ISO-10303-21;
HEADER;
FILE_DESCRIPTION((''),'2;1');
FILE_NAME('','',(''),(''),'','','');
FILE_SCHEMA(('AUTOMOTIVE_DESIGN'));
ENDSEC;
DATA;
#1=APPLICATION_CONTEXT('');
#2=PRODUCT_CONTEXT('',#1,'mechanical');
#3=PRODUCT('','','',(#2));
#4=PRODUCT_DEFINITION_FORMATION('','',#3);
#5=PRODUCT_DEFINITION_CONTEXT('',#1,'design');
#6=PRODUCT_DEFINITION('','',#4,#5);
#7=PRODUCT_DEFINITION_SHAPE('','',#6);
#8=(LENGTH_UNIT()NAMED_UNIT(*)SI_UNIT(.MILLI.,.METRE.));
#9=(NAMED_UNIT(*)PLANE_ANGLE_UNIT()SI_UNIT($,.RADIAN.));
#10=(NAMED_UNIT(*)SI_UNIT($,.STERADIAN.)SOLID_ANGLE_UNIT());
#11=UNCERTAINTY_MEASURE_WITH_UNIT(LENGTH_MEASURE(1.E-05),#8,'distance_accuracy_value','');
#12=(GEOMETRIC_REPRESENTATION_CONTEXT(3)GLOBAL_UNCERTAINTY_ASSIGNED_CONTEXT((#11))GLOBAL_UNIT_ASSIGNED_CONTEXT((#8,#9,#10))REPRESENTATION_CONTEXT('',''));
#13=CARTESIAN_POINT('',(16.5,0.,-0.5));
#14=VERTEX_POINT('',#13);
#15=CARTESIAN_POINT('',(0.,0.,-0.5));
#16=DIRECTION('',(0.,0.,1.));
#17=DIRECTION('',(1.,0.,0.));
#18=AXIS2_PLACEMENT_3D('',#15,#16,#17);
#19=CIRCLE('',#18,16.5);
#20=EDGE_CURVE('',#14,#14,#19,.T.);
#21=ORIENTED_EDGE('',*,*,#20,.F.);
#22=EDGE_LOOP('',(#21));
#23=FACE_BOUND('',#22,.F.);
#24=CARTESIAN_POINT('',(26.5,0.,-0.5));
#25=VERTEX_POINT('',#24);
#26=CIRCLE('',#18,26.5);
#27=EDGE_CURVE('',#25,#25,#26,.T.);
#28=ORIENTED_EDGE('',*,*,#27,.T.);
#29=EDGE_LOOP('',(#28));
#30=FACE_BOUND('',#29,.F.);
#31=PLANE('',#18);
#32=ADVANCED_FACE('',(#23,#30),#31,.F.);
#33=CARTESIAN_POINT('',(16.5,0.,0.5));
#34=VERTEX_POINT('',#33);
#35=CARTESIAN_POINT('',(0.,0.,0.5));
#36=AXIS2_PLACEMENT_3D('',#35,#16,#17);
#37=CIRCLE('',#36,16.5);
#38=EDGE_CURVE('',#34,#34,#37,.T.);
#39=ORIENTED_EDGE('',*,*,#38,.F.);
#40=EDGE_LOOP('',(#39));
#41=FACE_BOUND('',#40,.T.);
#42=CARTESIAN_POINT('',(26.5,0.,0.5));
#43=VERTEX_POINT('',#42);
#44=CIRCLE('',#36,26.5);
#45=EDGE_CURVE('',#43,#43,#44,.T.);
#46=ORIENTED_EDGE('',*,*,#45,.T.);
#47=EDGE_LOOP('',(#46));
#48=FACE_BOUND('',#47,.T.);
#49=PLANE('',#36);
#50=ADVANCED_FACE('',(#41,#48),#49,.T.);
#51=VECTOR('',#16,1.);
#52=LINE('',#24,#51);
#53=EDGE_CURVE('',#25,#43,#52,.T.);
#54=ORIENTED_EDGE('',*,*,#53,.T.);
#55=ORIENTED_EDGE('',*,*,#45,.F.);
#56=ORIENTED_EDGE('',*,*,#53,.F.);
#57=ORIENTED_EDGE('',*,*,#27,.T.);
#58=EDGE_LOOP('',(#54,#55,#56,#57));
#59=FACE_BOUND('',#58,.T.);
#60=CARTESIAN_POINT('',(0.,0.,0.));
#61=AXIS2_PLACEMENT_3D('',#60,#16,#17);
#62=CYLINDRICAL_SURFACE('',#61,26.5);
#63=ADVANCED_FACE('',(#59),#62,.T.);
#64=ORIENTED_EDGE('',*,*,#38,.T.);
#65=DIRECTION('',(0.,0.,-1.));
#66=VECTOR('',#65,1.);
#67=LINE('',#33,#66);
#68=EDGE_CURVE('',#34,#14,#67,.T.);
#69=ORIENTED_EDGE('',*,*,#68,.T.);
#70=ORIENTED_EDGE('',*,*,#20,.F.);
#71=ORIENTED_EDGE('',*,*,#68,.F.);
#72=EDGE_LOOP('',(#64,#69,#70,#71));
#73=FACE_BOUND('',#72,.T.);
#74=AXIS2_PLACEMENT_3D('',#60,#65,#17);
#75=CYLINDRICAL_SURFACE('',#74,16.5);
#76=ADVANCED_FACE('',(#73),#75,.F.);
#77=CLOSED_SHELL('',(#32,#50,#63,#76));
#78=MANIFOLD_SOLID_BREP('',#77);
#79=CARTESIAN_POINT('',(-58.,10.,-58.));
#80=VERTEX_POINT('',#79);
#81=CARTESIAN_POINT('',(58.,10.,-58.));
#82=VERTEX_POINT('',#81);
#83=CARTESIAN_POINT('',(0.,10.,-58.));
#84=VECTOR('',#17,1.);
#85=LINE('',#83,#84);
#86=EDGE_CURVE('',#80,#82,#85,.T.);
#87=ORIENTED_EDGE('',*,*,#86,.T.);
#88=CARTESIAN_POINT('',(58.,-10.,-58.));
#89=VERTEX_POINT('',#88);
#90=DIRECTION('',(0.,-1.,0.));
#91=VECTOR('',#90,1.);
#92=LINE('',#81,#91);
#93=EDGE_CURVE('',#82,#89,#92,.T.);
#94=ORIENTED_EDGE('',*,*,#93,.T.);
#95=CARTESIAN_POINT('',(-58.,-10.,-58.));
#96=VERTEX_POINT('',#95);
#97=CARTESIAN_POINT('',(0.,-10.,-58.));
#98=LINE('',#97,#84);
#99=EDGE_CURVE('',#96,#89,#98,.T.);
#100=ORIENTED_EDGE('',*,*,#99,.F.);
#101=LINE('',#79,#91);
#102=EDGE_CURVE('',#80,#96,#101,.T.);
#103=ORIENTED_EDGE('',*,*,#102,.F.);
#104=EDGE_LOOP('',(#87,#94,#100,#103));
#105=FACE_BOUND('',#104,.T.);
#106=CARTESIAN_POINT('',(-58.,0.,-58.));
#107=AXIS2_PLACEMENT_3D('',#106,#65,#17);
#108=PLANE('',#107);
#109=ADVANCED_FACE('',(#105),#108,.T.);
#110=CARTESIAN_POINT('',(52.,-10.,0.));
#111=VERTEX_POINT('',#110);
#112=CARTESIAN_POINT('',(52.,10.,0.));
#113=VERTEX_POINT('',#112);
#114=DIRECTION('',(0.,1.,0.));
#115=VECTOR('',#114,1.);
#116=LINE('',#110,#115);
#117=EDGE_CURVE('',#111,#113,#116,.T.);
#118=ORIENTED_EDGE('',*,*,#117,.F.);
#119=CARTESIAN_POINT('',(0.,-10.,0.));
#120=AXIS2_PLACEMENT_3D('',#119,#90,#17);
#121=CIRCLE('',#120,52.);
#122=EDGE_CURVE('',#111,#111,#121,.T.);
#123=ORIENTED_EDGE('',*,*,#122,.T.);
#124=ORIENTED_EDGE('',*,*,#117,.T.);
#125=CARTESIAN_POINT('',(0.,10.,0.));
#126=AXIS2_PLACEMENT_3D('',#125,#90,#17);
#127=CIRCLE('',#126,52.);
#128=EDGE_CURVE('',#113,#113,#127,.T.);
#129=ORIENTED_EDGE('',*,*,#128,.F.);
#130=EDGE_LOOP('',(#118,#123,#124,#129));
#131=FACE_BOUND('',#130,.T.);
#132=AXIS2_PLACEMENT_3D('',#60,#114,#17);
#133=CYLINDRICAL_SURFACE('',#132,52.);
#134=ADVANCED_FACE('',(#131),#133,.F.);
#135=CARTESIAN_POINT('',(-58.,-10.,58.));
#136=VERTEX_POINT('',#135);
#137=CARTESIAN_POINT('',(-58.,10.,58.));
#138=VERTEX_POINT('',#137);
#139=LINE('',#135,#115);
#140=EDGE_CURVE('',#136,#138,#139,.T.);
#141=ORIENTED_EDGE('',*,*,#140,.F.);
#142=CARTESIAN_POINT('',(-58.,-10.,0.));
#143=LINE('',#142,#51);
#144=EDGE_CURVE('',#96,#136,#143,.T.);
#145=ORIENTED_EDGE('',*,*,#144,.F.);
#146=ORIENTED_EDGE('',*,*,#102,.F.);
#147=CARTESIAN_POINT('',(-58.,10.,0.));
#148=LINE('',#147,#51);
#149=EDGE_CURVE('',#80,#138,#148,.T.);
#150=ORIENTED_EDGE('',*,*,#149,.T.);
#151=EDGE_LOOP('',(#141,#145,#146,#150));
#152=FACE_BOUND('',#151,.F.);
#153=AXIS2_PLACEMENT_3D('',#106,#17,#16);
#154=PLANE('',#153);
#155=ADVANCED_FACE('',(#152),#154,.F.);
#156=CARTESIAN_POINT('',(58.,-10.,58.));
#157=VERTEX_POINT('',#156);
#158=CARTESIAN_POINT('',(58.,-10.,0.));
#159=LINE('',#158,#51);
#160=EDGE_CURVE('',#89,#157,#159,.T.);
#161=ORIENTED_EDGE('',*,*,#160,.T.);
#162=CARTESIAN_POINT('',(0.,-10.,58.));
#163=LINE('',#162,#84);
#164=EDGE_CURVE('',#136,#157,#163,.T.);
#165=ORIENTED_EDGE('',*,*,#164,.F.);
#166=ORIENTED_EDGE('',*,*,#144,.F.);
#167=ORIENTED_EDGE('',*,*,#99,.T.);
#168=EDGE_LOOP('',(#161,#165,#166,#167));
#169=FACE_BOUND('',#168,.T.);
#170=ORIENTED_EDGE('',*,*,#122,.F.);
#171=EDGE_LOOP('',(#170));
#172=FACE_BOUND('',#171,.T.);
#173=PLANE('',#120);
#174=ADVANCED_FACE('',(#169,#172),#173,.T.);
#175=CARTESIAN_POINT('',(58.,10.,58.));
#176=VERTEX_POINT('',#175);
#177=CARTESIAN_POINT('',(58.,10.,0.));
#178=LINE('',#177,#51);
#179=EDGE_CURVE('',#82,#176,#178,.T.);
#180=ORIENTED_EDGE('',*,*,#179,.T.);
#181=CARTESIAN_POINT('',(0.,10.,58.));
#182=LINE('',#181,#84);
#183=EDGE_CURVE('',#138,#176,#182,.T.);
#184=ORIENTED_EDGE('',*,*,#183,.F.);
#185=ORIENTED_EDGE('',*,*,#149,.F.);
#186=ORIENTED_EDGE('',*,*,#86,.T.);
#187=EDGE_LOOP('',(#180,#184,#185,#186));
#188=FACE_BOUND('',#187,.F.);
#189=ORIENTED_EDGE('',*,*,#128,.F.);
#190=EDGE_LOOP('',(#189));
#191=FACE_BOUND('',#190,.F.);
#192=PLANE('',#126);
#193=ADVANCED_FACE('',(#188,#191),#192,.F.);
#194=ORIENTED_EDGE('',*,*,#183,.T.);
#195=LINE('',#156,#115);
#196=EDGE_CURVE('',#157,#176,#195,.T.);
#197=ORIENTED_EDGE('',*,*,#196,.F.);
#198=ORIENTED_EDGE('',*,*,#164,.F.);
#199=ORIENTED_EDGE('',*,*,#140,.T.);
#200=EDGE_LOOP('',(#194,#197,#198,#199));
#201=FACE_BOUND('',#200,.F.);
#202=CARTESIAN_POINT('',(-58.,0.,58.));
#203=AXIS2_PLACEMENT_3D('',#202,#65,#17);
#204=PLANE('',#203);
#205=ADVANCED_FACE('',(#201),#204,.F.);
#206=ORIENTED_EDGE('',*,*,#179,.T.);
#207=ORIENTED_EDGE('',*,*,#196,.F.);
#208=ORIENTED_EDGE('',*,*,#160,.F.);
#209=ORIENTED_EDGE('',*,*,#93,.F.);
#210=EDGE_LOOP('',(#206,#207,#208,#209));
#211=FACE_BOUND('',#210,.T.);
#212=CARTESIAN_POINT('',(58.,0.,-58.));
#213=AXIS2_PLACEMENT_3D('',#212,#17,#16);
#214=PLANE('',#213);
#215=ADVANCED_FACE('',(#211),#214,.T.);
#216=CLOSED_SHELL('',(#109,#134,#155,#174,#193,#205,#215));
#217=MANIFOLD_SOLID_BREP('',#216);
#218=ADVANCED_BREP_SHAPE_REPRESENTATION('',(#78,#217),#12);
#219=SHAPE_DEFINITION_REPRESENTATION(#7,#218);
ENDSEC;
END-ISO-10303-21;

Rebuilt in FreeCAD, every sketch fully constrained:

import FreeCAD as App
import Part
import Sketcher
from FreeCAD import Vector
Q = App.Units.Quantity


def add_polygon(sketch, points):
    """Adds a closed chain of lines whose ends are joined by coincident constraints."""
    first, n = sketch.GeometryCount, len(points)
    for a, b in zip(points, points[1:] + points[:1]):
        sketch.addGeometry(Part.LineSegment(App.Vector(*a, 0), App.Vector(*b, 0)), False)
    for i in range(n):
        sketch.addConstraint(Sketcher.Constraint("Coincident", first + i, 2, first + (i + 1) % n, 1))

doc = App.newDocument("Part")
body = doc.addObject("PartDesign::Body", "Body")

# Sketch on XZ plane
sketch1 = doc.addObject("Sketcher::SketchObject", "Sketch")
body.addObject(sketch1)
sketch1.AttachmentSupport = (doc.XZ_Plane, [""])
sketch1.MapMode = "FlatFace"
add_polygon(sketch1, [(-58, 58), (-58, -58), (58, -58), (58, 58)])  # lines 0-3
sketch1.addGeometry(Part.Circle(Vector(0, 0, 0), Vector(0, 0, 1), 52), False)  # 4
sketch1.addConstraint([
    Sketcher.Constraint("Vertical", 0),
    Sketcher.Constraint("Horizontal", 1),
    Sketcher.Constraint("Vertical", 2),
    Sketcher.Constraint("Horizontal", 3),
    Sketcher.Constraint("Coincident", 4, 3, -1, 1),
    Sketcher.Constraint("Symmetric", 0, 2, 2, 2, -1, 1),
    Sketcher.Constraint("Equal", 3, 0),
    Sketcher.Constraint("Diameter", 4, Q("104 mm")),
    Sketcher.Constraint("DistanceX", 1, 1, 1, 2, Q("116 mm")),
])
pad1 = doc.addObject("PartDesign::Pad", "Pad")
body.addObject(pad1)
pad1.Profile = sketch1
pad1.Length = 20
pad1.Midplane = True
body2 = doc.addObject("PartDesign::Body", "Body001")

# Sketch on XY plane
sketch2 = doc.addObject("Sketcher::SketchObject", "Sketch001")
body2.addObject(sketch2)
sketch2.AttachmentSupport = (doc.getObject("XY_Plane001"), [""])
sketch2.MapMode = "FlatFace"
sketch2.addGeometry([
    Part.Circle(Vector(0, 0, 0), Vector(0, 0, 1), 26),
    Part.Circle(Vector(0, 0, 0), Vector(0, 0, 1), 16),
], False)
sketch2.addConstraint([
    Sketcher.Constraint("Coincident", 0, 3, -1, 1),
    Sketcher.Constraint("Coincident", 1, 3, -1, 1),
    Sketcher.Constraint("Diameter", 0, Q("53 mm")),
    Sketcher.Constraint("Diameter", 1, Q("33 mm")),
])
pad2 = doc.addObject("PartDesign::Pad", "Pad001")
body2.addObject(pad2)
pad2.Profile = sketch2
pad2.Length = 1
pad2.Midplane = True

doc.recompute()
